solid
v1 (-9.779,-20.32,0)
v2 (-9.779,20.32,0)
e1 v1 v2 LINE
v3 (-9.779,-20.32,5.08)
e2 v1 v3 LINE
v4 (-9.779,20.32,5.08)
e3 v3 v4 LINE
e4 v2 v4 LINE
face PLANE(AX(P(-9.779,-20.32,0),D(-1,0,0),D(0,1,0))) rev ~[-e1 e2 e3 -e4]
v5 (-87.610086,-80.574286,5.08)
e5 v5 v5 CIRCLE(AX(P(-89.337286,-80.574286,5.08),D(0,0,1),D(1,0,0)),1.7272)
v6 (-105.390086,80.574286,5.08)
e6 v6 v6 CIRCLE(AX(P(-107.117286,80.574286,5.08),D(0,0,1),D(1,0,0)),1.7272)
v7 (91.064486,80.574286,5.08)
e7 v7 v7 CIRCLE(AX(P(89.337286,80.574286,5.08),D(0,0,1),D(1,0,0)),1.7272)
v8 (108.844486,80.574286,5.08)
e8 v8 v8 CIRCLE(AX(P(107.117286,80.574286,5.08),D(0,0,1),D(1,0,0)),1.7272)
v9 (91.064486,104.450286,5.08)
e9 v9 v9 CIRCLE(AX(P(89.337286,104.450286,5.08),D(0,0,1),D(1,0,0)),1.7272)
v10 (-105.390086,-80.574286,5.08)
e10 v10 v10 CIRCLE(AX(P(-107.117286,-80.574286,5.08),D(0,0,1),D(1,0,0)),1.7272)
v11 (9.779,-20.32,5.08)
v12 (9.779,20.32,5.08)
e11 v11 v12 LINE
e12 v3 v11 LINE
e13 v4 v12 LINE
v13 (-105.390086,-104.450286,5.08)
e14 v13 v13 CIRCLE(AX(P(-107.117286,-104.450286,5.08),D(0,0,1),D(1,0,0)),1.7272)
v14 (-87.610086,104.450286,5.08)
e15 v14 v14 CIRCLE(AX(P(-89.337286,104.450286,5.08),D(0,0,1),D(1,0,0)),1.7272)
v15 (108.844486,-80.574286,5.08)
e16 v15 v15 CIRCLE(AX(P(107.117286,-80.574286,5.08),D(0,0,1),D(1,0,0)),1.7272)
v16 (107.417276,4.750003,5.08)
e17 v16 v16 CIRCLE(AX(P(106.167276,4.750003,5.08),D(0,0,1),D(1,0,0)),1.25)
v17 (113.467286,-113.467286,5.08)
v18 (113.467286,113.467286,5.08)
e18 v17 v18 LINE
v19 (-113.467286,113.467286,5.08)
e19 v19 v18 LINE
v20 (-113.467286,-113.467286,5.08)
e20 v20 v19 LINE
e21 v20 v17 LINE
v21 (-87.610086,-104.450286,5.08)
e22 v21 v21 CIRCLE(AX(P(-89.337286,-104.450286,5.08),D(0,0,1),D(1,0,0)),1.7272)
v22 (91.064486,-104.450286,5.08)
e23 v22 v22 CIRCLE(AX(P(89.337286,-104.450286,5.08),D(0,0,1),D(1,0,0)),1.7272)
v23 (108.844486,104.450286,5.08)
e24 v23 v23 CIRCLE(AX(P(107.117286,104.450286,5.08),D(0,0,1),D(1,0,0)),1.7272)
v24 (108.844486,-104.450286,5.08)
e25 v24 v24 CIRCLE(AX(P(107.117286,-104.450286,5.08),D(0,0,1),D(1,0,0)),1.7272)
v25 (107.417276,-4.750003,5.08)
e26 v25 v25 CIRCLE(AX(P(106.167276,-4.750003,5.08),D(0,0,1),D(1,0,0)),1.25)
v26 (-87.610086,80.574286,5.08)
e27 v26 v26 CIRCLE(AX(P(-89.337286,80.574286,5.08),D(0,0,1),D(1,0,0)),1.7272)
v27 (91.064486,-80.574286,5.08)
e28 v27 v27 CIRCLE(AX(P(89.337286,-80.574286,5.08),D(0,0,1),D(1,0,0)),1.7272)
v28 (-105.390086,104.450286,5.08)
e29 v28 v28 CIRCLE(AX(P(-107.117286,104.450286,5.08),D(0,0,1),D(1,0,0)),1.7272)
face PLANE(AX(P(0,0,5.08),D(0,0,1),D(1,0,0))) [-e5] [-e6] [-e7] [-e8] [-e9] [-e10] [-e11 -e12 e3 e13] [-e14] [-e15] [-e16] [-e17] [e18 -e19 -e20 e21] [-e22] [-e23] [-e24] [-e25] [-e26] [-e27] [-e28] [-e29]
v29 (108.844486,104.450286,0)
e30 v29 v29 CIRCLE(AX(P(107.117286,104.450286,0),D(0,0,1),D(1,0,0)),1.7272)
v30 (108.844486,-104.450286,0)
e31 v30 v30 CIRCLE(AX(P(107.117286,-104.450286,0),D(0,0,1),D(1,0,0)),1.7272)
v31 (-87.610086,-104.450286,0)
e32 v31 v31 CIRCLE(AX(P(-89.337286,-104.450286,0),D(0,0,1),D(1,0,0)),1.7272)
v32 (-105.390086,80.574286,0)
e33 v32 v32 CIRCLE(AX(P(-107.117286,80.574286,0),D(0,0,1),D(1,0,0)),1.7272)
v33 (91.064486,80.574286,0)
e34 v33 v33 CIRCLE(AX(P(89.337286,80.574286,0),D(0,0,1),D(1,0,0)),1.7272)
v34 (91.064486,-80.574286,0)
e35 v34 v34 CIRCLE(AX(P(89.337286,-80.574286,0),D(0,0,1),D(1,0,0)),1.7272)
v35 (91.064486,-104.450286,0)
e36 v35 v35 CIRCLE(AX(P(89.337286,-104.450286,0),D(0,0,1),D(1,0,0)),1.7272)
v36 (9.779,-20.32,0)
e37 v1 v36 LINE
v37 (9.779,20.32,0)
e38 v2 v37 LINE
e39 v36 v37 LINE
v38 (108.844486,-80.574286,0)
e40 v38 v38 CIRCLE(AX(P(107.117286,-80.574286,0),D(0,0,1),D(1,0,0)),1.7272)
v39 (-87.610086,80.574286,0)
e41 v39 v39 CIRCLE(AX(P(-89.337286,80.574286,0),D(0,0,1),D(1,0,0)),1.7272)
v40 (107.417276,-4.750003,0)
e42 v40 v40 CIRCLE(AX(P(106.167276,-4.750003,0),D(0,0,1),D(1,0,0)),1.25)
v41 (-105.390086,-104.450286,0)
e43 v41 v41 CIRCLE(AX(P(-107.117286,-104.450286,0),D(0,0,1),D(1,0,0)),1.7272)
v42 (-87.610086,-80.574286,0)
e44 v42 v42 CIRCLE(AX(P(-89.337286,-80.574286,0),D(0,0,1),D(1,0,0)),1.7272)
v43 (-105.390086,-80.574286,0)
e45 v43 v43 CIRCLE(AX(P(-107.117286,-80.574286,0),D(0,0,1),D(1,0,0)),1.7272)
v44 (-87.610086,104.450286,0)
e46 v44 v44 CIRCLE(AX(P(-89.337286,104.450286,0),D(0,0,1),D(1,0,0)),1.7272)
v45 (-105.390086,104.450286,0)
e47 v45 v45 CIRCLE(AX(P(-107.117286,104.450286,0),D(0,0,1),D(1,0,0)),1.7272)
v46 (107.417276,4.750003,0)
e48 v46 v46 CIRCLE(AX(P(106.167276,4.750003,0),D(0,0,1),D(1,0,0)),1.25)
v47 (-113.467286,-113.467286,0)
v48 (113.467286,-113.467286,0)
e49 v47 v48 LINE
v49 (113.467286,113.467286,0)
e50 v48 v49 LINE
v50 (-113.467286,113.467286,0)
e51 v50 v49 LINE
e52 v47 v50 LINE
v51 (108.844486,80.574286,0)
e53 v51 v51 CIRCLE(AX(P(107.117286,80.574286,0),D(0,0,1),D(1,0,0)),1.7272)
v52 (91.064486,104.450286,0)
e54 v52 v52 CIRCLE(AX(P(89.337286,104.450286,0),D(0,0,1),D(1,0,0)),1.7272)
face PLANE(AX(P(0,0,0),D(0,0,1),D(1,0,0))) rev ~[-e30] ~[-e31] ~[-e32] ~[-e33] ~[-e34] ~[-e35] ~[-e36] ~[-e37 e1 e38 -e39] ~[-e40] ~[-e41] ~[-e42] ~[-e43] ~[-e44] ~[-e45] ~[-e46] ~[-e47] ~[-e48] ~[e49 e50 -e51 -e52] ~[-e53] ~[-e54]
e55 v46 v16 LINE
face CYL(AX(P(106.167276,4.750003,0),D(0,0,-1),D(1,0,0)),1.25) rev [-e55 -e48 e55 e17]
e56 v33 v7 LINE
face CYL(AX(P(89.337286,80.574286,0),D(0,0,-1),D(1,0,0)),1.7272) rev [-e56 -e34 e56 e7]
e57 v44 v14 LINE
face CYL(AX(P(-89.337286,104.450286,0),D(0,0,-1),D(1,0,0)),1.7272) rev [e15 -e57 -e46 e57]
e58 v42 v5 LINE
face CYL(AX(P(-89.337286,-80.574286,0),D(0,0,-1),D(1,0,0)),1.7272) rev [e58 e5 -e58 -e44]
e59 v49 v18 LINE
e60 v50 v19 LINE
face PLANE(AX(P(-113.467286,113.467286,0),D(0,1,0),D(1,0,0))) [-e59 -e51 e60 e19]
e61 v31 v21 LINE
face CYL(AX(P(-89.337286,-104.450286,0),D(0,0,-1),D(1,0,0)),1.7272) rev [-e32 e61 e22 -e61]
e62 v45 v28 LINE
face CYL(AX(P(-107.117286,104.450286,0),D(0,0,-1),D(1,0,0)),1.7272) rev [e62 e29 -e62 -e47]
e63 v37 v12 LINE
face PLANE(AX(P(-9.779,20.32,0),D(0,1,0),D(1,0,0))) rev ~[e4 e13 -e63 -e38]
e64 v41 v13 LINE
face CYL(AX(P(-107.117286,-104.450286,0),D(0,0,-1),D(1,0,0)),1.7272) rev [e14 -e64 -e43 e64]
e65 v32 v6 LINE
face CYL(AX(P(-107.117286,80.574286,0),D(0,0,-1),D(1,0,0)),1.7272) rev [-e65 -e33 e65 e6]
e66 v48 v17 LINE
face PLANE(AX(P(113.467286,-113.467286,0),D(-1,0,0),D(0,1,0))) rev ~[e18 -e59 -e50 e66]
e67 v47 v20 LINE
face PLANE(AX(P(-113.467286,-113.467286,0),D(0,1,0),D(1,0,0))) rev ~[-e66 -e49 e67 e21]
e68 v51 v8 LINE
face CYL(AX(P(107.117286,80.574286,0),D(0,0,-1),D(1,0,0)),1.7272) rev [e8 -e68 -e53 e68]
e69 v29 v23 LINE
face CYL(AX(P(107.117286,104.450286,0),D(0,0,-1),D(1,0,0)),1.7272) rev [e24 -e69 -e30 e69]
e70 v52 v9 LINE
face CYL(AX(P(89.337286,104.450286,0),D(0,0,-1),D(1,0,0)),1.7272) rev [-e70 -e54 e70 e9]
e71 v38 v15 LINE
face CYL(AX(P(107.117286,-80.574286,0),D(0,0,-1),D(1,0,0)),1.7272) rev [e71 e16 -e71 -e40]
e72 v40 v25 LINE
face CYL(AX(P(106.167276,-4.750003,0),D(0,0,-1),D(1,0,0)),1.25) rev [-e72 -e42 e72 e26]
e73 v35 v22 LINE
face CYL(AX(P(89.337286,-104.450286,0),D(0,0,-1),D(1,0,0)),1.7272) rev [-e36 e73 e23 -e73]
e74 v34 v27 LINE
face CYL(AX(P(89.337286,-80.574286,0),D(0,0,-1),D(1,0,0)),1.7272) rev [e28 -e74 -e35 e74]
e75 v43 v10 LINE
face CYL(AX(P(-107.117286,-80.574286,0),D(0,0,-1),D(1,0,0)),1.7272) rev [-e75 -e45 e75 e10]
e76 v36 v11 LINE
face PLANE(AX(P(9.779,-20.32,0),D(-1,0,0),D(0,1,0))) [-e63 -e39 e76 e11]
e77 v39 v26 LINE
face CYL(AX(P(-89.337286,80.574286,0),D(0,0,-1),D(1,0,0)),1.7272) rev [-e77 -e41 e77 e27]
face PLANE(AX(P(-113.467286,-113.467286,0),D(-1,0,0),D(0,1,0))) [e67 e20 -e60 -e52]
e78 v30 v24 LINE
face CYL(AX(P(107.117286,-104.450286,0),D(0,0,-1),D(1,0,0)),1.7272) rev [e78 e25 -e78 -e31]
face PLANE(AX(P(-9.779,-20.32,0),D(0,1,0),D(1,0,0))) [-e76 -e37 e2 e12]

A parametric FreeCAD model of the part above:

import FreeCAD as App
import Part
import Sketcher
Q = App.Units.Quantity

doc = App.newDocument("Part")
body = doc.addObject("PartDesign::Body", "Body")

# Sketch on XY plane
sketch1 = body.newObject("Sketcher::SketchObject", "Sketch")
sketch1.AttachmentSupport = (doc.getObject("XY_Plane"), [""])
sketch1.MapMode = "FlatFace"
sketch1.addGeometry([
    Part.LineSegment(App.Vector(-113.5, 113.5, 0), App.Vector(-113.5, -113.5, 0)),  # 0
    Part.LineSegment(App.Vector(-113.5, -113.5, 0), App.Vector(113.5, -113.5, 0)),  # 1
    Part.LineSegment(App.Vector(113.5, -113.5, 0), App.Vector(113.5, 113.5, 0)),  # 2
    Part.LineSegment(App.Vector(113.5, 113.5, 0), App.Vector(-113.5, 113.5, 0)),  # 3
    Part.Circle(App.Vector(-107.1, -104.5, 0), App.Vector(0, 0, 1), 1.7),  # 4
    Part.Circle(App.Vector(-89.3, -104.5, 0), App.Vector(0, 0, 1), 1.7),  # 5
    Part.Circle(App.Vector(-107.1, -80.6, 0), App.Vector(0, 0, 1), 1.7),  # 6
    Part.Circle(App.Vector(-89.3, -80.6, 0), App.Vector(0, 0, 1), 1.7),  # 7
    Part.Circle(App.Vector(89.3, -104.5, 0), App.Vector(0, 0, 1), 1.7),  # 8
    Part.Circle(App.Vector(107.1, -104.5, 0), App.Vector(0, 0, 1), 1.7),  # 9
    Part.Circle(App.Vector(89.3, -80.6, 0), App.Vector(0, 0, 1), 1.7),  # 10
    Part.Circle(App.Vector(107.1, -80.6, 0), App.Vector(0, 0, 1), 1.7),  # 11
    Part.Circle(App.Vector(106.2, -4.8, 0), App.Vector(0, 0, 1), 1.2),  # 12
    Part.Circle(App.Vector(-107.1, 80.6, 0), App.Vector(0, 0, 1), 1.7),  # 13
    Part.Circle(App.Vector(-89.3, 80.6, 0), App.Vector(0, 0, 1), 1.7),  # 14
    Part.Circle(App.Vector(-107.1, 104.5, 0), App.Vector(0, 0, 1), 1.7),  # 15
    Part.Circle(App.Vector(-89.3, 104.5, 0), App.Vector(0, 0, 1), 1.7),  # 16
    Part.LineSegment(App.Vector(9.8, -20.3, 0), App.Vector(-9.8, -20.3, 0)),  # 17
    Part.LineSegment(App.Vector(-9.8, -20.3, 0), App.Vector(-9.8, 20.3, 0)),  # 18
    Part.LineSegment(App.Vector(-9.8, 20.3, 0), App.Vector(9.8, 20.3, 0)),  # 19
    Part.LineSegment(App.Vector(9.8, 20.3, 0), App.Vector(9.8, -20.3, 0)),  # 20
    Part.Circle(App.Vector(106.2, 4.8, 0), App.Vector(0, 0, 1), 1.2),  # 21
    Part.Circle(App.Vector(89.3, 80.6, 0), App.Vector(0, 0, 1), 1.7),  # 22
    Part.Circle(App.Vector(107.1, 80.6, 0), App.Vector(0, 0, 1), 1.7),  # 23
    Part.Circle(App.Vector(89.3, 104.5, 0), App.Vector(0, 0, 1), 1.7),  # 24
    Part.Circle(App.Vector(107.1, 104.5, 0), App.Vector(0, 0, 1), 1.7),  # 25
], False)
sketch1.addConstraint([
    Sketcher.Constraint("Coincident", 0, 2, 1, 1),
    Sketcher.Constraint("Coincident", 1, 2, 2, 1),
    Sketcher.Constraint("Coincident", 2, 2, 3, 1),
    Sketcher.Constraint("Coincident", 3, 2, 0, 1),
    Sketcher.Constraint("Coincident", 17, 2, 18, 1),
    Sketcher.Constraint("Coincident", 18, 2, 19, 1),
    Sketcher.Constraint("Coincident", 19, 2, 20, 1),
    Sketcher.Constraint("Coincident", 20, 2, 17, 1),
    Sketcher.Constraint("Vertical", 0),
    Sketcher.Constraint("Horizontal", 1),
    Sketcher.Constraint("Vertical", 2),
    Sketcher.Constraint("Horizontal", 3),
    Sketcher.Constraint("Horizontal", 17),
    Sketcher.Constraint("Vertical", 18),
    Sketcher.Constraint("Horizontal", 19),
    Sketcher.Constraint("Vertical", 20),
    Sketcher.Constraint("Equal", 4, 5),
    Sketcher.Constraint("Equal", 5, 6),
    Sketcher.Constraint("Equal", 6, 7),
    Sketcher.Constraint("Equal", 7, 8),
    Sketcher.Constraint("Equal", 8, 9),
    Sketcher.Constraint("Equal", 9, 10),
    Sketcher.Constraint("Equal", 10, 11),
    Sketcher.Constraint("Equal", 11, 13),
    Sketcher.Constraint("Equal", 13, 14),
    Sketcher.Constraint("Equal", 14, 15),
    Sketcher.Constraint("Equal", 15, 16),
    Sketcher.Constraint("Equal", 12, 21),
    Sketcher.Constraint("Equal", 16, 22),
    Sketcher.Constraint("Equal", 22, 23),
    Sketcher.Constraint("Equal", 23, 24),
    Sketcher.Constraint("Equal", 24, 25),
    Sketcher.Constraint("Symmetric", 11, 3, 13, 3, -1, 1),
    Sketcher.Constraint("Symmetric", 10, 3, 14, 3, -1, 1),
    Sketcher.Constraint("Symmetric", 9, 3, 15, 3, -1, 1),
    Sketcher.Constraint("Symmetric", 8, 3, 16, 3, -1, 1),
    Sketcher.Constraint("Symmetric", 7, 3, 22, 3, -1, 1),
    Sketcher.Constraint("Symmetric", 6, 3, 23, 3, -1, 1),
    Sketcher.Constraint("Symmetric", 5, 3, 24, 3, -1, 1),
    Sketcher.Constraint("Symmetric", 4, 3, 25, 3, -1, 1),
    Sketcher.Constraint("Symmetric", 0, 2, 2, 2, -1, 1),
    Sketcher.Constraint("Symmetric", 17, 2, 19, 2, -1, 1),
    Sketcher.Constraint("Symmetric", 5, 3, 8, 3, -2),
    Sketcher.Constraint("Symmetric", 4, 3, 9, 3, -2),
    Sketcher.Constraint("Symmetric", 7, 3, 10, 3, -2),
    Sketcher.Constraint("Symmetric", 6, 3, 11, 3, -2),
    Sketcher.Constraint("Symmetric", 12, 3, 21, 3, -1),
    Sketcher.Constraint("Horizontal", 4, 3, 5, 3),
    Sketcher.Constraint("Horizontal", 6, 3, 7, 3),
    Sketcher.Constraint("Vertical", 4, 3, 6, 3),
    Sketcher.Constraint("Vertical", 5, 3, 7, 3),
    Sketcher.Constraint("Equal", 3, 0),
    Sketcher.Constraint("Diameter", 4, Q("0.136 in")),
    Sketcher.Constraint("DistanceY", 18, 1, 18, 2, Q("1.6 in")),
    Sketcher.Constraint("DistanceX", 17, 2, 17, 1, Q("0.77 in")),
    Sketcher.Constraint("DistanceX", 4, 3, 5, 3, Q("0.7 in")),
    Sketcher.Constraint("Diameter", 12, 2.5),
    Sketcher.Constraint("DistanceY", 4, 3, 6, 3, Q("0.94 in")),
    Sketcher.Constraint("DistanceX", 0, 2, 4, 3, Q("0.25 in")),
    Sketcher.Constraint("DistanceY", 0, 2, 4, 3, Q("0.355 in")),
    Sketcher.Constraint("DistanceX", 1, 1, 1, 2, 226.934572),
    Sketcher.Constraint("DistanceX", 12, 3, 11, 3, 0.95001),
    Sketcher.Constraint("DistanceY", 12, 3, 13, 3, 85.324289),
])
pad1 = body.newObject("PartDesign::Pad", "Pad")
pad1.Profile = sketch1
pad1.Length = Q("0.2 in")

doc.recompute()
